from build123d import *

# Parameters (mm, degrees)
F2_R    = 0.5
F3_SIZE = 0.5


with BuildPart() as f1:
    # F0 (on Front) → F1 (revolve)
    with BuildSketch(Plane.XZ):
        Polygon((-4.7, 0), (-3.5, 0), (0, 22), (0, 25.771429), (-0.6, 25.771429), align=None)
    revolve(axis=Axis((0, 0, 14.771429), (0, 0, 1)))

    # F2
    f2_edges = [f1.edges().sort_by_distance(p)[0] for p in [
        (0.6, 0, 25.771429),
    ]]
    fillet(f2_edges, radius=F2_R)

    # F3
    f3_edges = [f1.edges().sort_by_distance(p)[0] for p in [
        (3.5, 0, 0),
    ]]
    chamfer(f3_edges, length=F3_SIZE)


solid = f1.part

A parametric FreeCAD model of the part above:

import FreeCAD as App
import Part
import Sketcher
from FreeCAD import Vector


def edges_at(feature, points):
    """Names of the edges that pass closest to the given points."""
    edges = feature.Shape.Edges
    near = lambda p: min(range(len(edges)), key=lambda i: edges[i].distToShape(Part.Vertex(*p))[0])
    return sorted({f"Edge{near(p) + 1}" for p in points})

doc = App.newDocument("Part")
body = doc.addObject("PartDesign::Body", "Body")

# Sketch on XZ plane
sketch1 = body.newObject("Sketcher::SketchObject", "Sketch")
sketch1.AttachmentSupport = (doc.getObject("XZ_Plane"), [""])
sketch1.MapMode = "FlatFace"
sketch1.addGeometry(Part.LineSegment(Vector(-4.7, 0, 0), Vector(-3.5, 0, 0)), False)
sketch1.addGeometry(Part.LineSegment(Vector(-3.5, 0, 0), Vector(0, 22, 0)), False)
sketch1.addGeometry(Part.LineSegment(Vector(0, 22, 0), Vector(0, 25.8, 0)), False)
sketch1.addGeometry(Part.LineSegment(Vector(0, 25.8, 0), Vector(-0.6, 25.8, 0)), False)
sketch1.addGeometry(Part.LineSegment(Vector(-0.6, 25.8, 0), Vector(-4.7, 0, 0)), False)
sketch1.addConstraint(Sketcher.Constraint("Coincident", 0, 2, 1, 1))
sketch1.addConstraint(Sketcher.Constraint("Coincident", 1, 2, 2, 1))
sketch1.addConstraint(Sketcher.Constraint("Coincident", 2, 2, 3, 1))
sketch1.addConstraint(Sketcher.Constraint("Coincident", 3, 2, 4, 1))
sketch1.addConstraint(Sketcher.Constraint("Coincident", 4, 2, 0, 1))
sketch1.addConstraint(Sketcher.Constraint("Horizontal", 0))
sketch1.addConstraint(Sketcher.Constraint("Vertical", 2))
sketch1.addConstraint(Sketcher.Constraint("Horizontal", 3))
sketch1.addConstraint(Sketcher.Constraint("PointOnObject", 0, 2, -1))
sketch1.addConstraint(Sketcher.Constraint("PointOnObject", 1, 2, -2))
sketch1.addConstraint(Sketcher.Constraint("Parallel", 1, 4))
sketch1.addConstraint(Sketcher.Constraint("DistanceX", 0, 1, 0, 2, 1.2))
sketch1.addConstraint(Sketcher.Constraint("DistanceX", 3, 2, 3, 1, 0.6))
sketch1.addConstraint(Sketcher.Constraint("DistanceY", -1, 1, 1, 2, 22.0))
sketch1.addConstraint(Sketcher.Constraint("DistanceX", 0, 2, -1, 1, 3.5))
revolution = body.newObject("PartDesign::Revolution", "Revolution")
revolution.Profile = sketch1
revolution.ReferenceAxis = (sketch1, ["V_Axis"])
revolution.Angle = 360
doc.recompute()

fillet = body.newObject("PartDesign::Fillet", "Fillet")
fillet.Base = (revolution, edges_at(revolution, [(0.6, 0, 25.771)]))
fillet.Radius = 0.5
doc.recompute()

chamfer = body.newObject("PartDesign::Chamfer", "Chamfer")
chamfer.Base = (fillet, edges_at(fillet, [(3.5, 0, 0)]))
chamfer.Size = 0.5

doc.recompute()
